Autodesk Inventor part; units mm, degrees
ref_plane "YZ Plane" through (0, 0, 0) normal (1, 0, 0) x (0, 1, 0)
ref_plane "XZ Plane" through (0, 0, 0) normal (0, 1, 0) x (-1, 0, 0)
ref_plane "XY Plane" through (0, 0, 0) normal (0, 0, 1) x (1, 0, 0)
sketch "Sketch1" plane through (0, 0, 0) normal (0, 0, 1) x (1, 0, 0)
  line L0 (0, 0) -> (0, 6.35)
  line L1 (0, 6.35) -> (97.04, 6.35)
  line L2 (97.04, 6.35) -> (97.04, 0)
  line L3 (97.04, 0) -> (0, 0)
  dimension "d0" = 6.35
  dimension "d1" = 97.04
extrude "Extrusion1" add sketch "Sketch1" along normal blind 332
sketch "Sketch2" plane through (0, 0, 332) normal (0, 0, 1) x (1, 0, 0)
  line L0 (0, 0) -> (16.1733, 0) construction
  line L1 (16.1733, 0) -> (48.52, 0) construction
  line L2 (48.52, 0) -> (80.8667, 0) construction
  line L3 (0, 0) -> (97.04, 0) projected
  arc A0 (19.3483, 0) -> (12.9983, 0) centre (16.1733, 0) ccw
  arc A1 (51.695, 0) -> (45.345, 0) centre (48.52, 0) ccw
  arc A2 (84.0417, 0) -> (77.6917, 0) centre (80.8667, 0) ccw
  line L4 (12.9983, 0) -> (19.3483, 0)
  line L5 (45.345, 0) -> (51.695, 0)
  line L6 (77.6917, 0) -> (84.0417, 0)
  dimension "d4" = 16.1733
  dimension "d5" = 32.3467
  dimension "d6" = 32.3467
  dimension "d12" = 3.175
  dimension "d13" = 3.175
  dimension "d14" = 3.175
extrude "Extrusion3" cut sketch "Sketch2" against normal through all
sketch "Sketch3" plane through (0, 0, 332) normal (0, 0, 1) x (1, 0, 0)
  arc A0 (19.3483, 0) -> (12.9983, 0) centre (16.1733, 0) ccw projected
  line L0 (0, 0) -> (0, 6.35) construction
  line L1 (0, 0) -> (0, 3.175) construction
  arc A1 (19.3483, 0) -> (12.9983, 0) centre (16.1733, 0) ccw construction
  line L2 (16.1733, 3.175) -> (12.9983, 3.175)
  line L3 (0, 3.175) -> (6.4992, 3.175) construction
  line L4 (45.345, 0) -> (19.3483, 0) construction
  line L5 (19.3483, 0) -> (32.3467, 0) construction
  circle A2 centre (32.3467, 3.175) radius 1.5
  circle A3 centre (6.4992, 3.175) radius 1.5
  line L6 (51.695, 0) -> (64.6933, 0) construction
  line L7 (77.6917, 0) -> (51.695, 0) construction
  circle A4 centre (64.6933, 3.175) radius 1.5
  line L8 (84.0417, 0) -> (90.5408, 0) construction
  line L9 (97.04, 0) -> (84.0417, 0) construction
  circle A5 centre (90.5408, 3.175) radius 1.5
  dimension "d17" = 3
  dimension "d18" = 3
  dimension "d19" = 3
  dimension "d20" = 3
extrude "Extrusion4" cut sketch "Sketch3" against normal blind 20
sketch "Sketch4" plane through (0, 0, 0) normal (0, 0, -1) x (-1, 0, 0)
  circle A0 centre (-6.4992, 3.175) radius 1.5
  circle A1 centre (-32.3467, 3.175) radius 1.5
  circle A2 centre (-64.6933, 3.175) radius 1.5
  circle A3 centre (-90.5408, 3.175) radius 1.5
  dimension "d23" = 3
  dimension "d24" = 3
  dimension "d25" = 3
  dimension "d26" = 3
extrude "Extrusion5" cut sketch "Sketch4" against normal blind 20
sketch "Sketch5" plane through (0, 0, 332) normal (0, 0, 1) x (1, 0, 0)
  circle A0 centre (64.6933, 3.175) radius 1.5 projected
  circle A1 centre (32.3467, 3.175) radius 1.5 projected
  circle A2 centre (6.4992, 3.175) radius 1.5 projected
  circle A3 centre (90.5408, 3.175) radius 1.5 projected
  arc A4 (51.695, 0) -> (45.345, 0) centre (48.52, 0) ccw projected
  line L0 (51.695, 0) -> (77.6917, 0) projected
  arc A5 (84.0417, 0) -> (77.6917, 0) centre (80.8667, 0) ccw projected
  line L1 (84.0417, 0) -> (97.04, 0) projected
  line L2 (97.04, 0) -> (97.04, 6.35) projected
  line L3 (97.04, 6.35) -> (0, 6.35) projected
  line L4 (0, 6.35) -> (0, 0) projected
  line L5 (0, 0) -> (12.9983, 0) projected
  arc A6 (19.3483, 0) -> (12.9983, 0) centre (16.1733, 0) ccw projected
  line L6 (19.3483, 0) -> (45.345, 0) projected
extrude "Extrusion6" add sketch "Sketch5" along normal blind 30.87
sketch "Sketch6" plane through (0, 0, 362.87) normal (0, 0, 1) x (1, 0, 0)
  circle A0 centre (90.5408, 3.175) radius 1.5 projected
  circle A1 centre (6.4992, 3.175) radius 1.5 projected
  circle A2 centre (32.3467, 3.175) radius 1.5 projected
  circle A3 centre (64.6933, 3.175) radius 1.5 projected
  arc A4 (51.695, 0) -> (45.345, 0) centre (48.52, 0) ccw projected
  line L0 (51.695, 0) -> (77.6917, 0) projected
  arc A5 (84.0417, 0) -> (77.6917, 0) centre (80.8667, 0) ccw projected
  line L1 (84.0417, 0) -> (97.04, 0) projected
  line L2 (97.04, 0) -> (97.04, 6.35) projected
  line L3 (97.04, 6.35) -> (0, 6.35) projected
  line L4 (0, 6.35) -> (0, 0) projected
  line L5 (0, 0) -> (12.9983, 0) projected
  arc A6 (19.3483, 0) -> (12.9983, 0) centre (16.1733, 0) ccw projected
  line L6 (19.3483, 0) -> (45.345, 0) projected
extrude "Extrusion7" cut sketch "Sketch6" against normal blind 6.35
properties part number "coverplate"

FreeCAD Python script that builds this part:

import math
import FreeCAD as App
import Part
import Sketcher

V = App.Vector
Q = App.Units.Quantity

doc = App.newDocument("Part")
body = doc.addObject("PartDesign::Body", "Body")

sketch1 = body.newObject("Sketcher::SketchObject", "Sketch")
sketch1.AttachmentSupport = (doc.getObject("XY_Plane"), [""])
sketch1.MapMode = "FlatFace"
sketch1.addGeometry([
    Part.LineSegment(V(0, 6, 0), V(0, 0, 0)),
    Part.LineSegment(V(0, 0, 0), V(97, 0, 0)),
    Part.LineSegment(V(97, 0, 0), V(97, 6, 0)),
    Part.LineSegment(V(97, 6, 0), V(0, 6, 0)),
], False)
sketch1.addConstraint([
    Sketcher.Constraint("Coincident", 0, 2, 1, 1),
    Sketcher.Constraint("Coincident", 1, 2, 2, 1),
    Sketcher.Constraint("Coincident", 2, 2, 3, 1),
    Sketcher.Constraint("Coincident", 3, 2, 0, 1),
    Sketcher.Constraint("Vertical", 0),
    Sketcher.Constraint("Horizontal", 1),
    Sketcher.Constraint("Vertical", 2),
    Sketcher.Constraint("Horizontal", 3),
    Sketcher.Constraint("Coincident", 0, 2, -1, 1),
    Sketcher.Constraint("DistanceX", 1, 1, 1, 2, Q("97.04 mm")),
    Sketcher.Constraint("DistanceY", 0, 2, 0, 1, Q("6.35 mm")),
])
pad1 = body.newObject("PartDesign::Pad", "Pad")
pad1.Profile = sketch1
pad1.Length = 332

sketch2 = body.newObject("Sketcher::SketchObject", "Sketch001")
sketch2.AttachmentSupport = (doc.getObject("XY_Plane"), [""])
sketch2.MapMode = "FlatFace"
sketch2.AttachmentOffset = App.Placement(V(0, 0, 332), App.Rotation())
sketch2.addGeometry([
    Part.ArcOfCircle(Part.Circle(V(16.2, 0, 0), V(0, 0, 1), 3.2), math.radians(0), math.radians(180)),
    Part.LineSegment(V(13, 0, 0), V(19.3, 0, 0)),
    Part.ArcOfCircle(Part.Circle(V(80.9, 0, 0), V(0, 0, 1), 3.2), math.radians(0), math.radians(180)),
    Part.LineSegment(V(77.7, 0, 0), V(84, 0, 0)),
    Part.ArcOfCircle(Part.Circle(V(48.5, 0, 0), V(0, 0, 1), 3.2), math.radians(0), math.radians(180)),
    Part.LineSegment(V(45.3, 0, 0), V(51.7, 0, 0)),
], False)
sketch2.addConstraint([
    Sketcher.Constraint("Coincident", 0, 1, 1, 2),
    Sketcher.Constraint("Coincident", 1, 1, 0, 2),
    Sketcher.Constraint("Coincident", 2, 1, 3, 2),
    Sketcher.Constraint("Coincident", 3, 1, 2, 2),
    Sketcher.Constraint("Coincident", 4, 1, 5, 2),
    Sketcher.Constraint("Coincident", 5, 1, 4, 2),
    Sketcher.Constraint("Horizontal", 1),
    Sketcher.Constraint("Horizontal", 3),
    Sketcher.Constraint("Horizontal", 5),
    Sketcher.Constraint("Equal", 0, 2),
    Sketcher.Constraint("Equal", 2, 4),
    Sketcher.Constraint("PointOnObject", 0, 3, -1),
    Sketcher.Constraint("PointOnObject", 2, 3, -1),
    Sketcher.Constraint("PointOnObject", 4, 3, -1),
    Sketcher.Constraint("PointOnObject", 0, 1, -1),
    Sketcher.Constraint("PointOnObject", 2, 1, -1),
    Sketcher.Constraint("PointOnObject", 4, 1, -1),
    Sketcher.Constraint("Radius", 0, Q("3.175 mm")),
    Sketcher.Constraint("DistanceX", -1, 1, 0, 3, Q("16.1733 mm")),
    Sketcher.Constraint("DistanceX", 4, 3, 2, 3, Q("32.3467 mm")),
    Sketcher.Constraint("DistanceX", 0, 3, 4, 3, Q("32.3467 mm")),
])
pocket1 = body.newObject("PartDesign::Pocket", "Pocket")
pocket1.Profile = sketch2
pocket1.Type = "ThroughAll"

sketch3 = body.newObject("Sketcher::SketchObject", "Sketch002")
sketch3.AttachmentSupport = (doc.getObject("XY_Plane"), [""])
sketch3.MapMode = "FlatFace"
sketch3.AttachmentOffset = App.Placement(V(0, 0, 332), App.Rotation())
sketch3.addGeometry([
    Part.Circle(V(32.3, 3.2, 0), V(0, 0, 1), 1.5),
    Part.Circle(V(6.5, 3.2, 0), V(0, 0, 1), 1.5),
    Part.Circle(V(64.7, 3.2, 0), V(0, 0, 1), 1.5),
    Part.Circle(V(90.5, 3.2, 0), V(0, 0, 1), 1.5),
], False)
sketch3.addConstraint([
    Sketcher.Constraint("Equal", 0, 1),
    Sketcher.Constraint("Equal", 1, 2),
    Sketcher.Constraint("Equal", 2, 3),
    Sketcher.Constraint("Horizontal", 0, 3, 1, 3),
    Sketcher.Constraint("Horizontal", 1, 3, 2, 3),
    Sketcher.Constraint("Horizontal", 2, 3, 3, 3),
    Sketcher.Constraint("Diameter", 0, Q("3 mm")),
    Sketcher.Constraint("DistanceY", -1, 1, 0, 3, Q("3.175 mm")),
    Sketcher.Constraint("DistanceX", 1, 3, 2, 3, Q("58.194 mm")),
    Sketcher.Constraint("DistanceX", 0, 3, 3, 3, Q("58.194 mm")),
    Sketcher.Constraint("DistanceX", -1, 1, 0, 3, Q("32.3467 mm")),
    Sketcher.Constraint("DistanceX", -1, 1, 1, 3, Q("6.4992 mm")),
])
pocket2 = body.newObject("PartDesign::Pocket", "Pocket001")
pocket2.Profile = sketch3
pocket2.Length = 20

sketch4 = body.newObject("Sketcher::SketchObject", "Sketch003")
sketch4.AttachmentSupport = (doc.getObject("XY_Plane"), [""])
sketch4.MapMode = "FlatFace"
sketch4.addGeometry([
    Part.Circle(V(6.5, 3.2, 0), V(0, 0, 1), 1.5),
    Part.Circle(V(32.3, 3.2, 0), V(0, 0, 1), 1.5),
    Part.Circle(V(64.7, 3.2, 0), V(0, 0, 1), 1.5),
    Part.Circle(V(90.5, 3.2, 0), V(0, 0, 1), 1.5),
], False)
sketch4.addConstraint([
    Sketcher.Constraint("Equal", 0, 1),
    Sketcher.Constraint("Equal", 1, 2),
    Sketcher.Constraint("Equal", 2, 3),
    Sketcher.Constraint("Horizontal", 0, 3, 1, 3),
    Sketcher.Constraint("Horizontal", 1, 3, 2, 3),
    Sketcher.Constraint("Horizontal", 2, 3, 3, 3),
    Sketcher.Constraint("Diameter", 0, Q("3 mm")),
    Sketcher.Constraint("DistanceY", -1, 1, 0, 3, Q("3.175 mm")),
    Sketcher.Constraint("DistanceX", 0, 3, 2, 3, Q("58.194 mm")),
    Sketcher.Constraint("DistanceX", 1, 3, 3, 3, Q("58.194 mm")),
    Sketcher.Constraint("DistanceX", -1, 1, 0, 3, Q("6.4992 mm")),
    Sketcher.Constraint("DistanceX", -1, 1, 1, 3, Q("32.3467 mm")),
])
pocket3 = body.newObject("PartDesign::Pocket", "Pocket002")
pocket3.Profile = sketch4
pocket3.Length = 20
pocket3.Reversed = True

sketch5 = body.newObject("Sketcher::SketchObject", "Sketch004")
sketch5.AttachmentSupport = (doc.getObject("XY_Plane"), [""])
sketch5.MapMode = "FlatFace"
sketch5.AttachmentOffset = App.Placement(V(0, 0, 332), App.Rotation())
sketch5.addGeometry([
    Part.ArcOfCircle(Part.Circle(V(48.5, 0, 0), V(0, 0, 1), 3.2), math.radians(0), math.radians(180)),
    Part.LineSegment(V(51.7, 0, 0), V(77.7, 0, 0)),
    Part.ArcOfCircle(Part.Circle(V(80.9, 0, 0), V(0, 0, 1), 3.2), math.radians(0), math.radians(180)),
    Part.LineSegment(V(84, 0, 0), V(97, 0, 0)),
    Part.LineSegment(V(97, 0, 0), V(97, 6.3, 0)),
    Part.LineSegment(V(97, 6.3, 0), V(0, 6.3, 0)),
    Part.LineSegment(V(0, 6.3, 0), V(0, 0, 0)),
    Part.LineSegment(V(0, 0, 0), V(13, 0, 0)),
    Part.ArcOfCircle(Part.Circle(V(16.2, 0, 0), V(0, 0, 1), 3.2), math.radians(0), math.radians(180)),
    Part.LineSegment(V(19.3, 0, 0), V(45.3, 0, 0)),
    Part.Circle(V(6.5, 3.2, 0), V(0, 0, 1), 1.5),
    Part.Circle(V(32.3, 3.2, 0), V(0, 0, 1), 1.5),
    Part.Circle(V(64.7, 3.2, 0), V(0, 0, 1), 1.5),
    Part.Circle(V(90.5, 3.2, 0), V(0, 0, 1), 1.5),
], False)
sketch5.addConstraint([
    Sketcher.Constraint("Coincident", 0, 1, 1, 1),
    Sketcher.Constraint("Coincident", 1, 2, 2, 2),
    Sketcher.Constraint("Coincident", 2, 1, 3, 1),
    Sketcher.Constraint("Coincident", 3, 2, 4, 1),
    Sketcher.Constraint("Coincident", 4, 2, 5, 1),
    Sketcher.Constraint("Coincident", 5, 2, 6, 1),
    Sketcher.Constraint("Coincident", 6, 2, 7, 1),
    Sketcher.Constraint("Coincident", 7, 2, 8, 2),
    Sketcher.Constraint("Coincident", 8, 1, 9, 1),
    Sketcher.Constraint("Coincident", 9, 2, 0, 2),
    Sketcher.Constraint("Horizontal", 1),
    Sketcher.Constraint("Horizontal", 3),
    Sketcher.Constraint("Vertical", 4),
    Sketcher.Constraint("Horizontal", 5),
    Sketcher.Constraint("Vertical", 6),
    Sketcher.Constraint("Horizontal", 7),
    Sketcher.Constraint("Horizontal", 9),
    Sketcher.Constraint("Coincident", 6, 2, -1, 1),
    Sketcher.Constraint("Equal", 0, 2),
    Sketcher.Constraint("Equal", 2, 8),
    Sketcher.Constraint("Equal", 10, 11),
    Sketcher.Constraint("Equal", 11, 12),
    Sketcher.Constraint("Equal", 12, 13),
    Sketcher.Constraint("PointOnObject", 0, 3, -1),
    Sketcher.Constraint("PointOnObject", 2, 3, -1),
    Sketcher.Constraint("PointOnObject", 8, 3, -1),
    Sketcher.Constraint("PointOnObject", 0, 1, -1),
    Sketcher.Constraint("PointOnObject", 2, 1, -1),
    Sketcher.Constraint("PointOnObject", 8, 1, -1),
    Sketcher.Constraint("Horizontal", 10, 3, 11, 3),
    Sketcher.Constraint("Horizontal", 11, 3, 12, 3),
    Sketcher.Constraint("Horizontal", 12, 3, 13, 3),
    Sketcher.Constraint("Equal", 3, 7),
    Sketcher.Constraint("Equal", 1, 9),
    Sketcher.Constraint("Diameter", 10, Q("3 mm")),
    Sketcher.Constraint("Radius", 0, Q("3.175 mm")),
    Sketcher.Constraint("DistanceX", 5, 2, 5, 1, Q("97.04 mm")),
    Sketcher.Constraint("DistanceY", 4, 1, 4, 2, Q("6.35 mm")),
    Sketcher.Constraint("DistanceX", 11, 3, 2, 3, Q("48.52 mm")),
    Sketcher.Constraint("DistanceX", 8, 3, 12, 3, Q("48.52 mm")),
    Sketcher.Constraint("DistanceX", 1, 1, 1, 2, Q("25.9967 mm")),
    Sketcher.Constraint("DistanceY", -1, 1, 10, 3, Q("3.175 mm")),
    Sketcher.Constraint("DistanceX", 10, 3, 8, 3, Q("9.674 mm")),
    Sketcher.Constraint("DistanceX", 2, 3, 13, 3, Q("9.674 mm")),
])
pad2 = body.newObject("PartDesign::Pad", "Pad001")
pad2.Profile = sketch5
pad2.Length = 30.87

sketch6 = body.newObject("Sketcher::SketchObject", "Sketch005")
sketch6.AttachmentSupport = (doc.getObject("XY_Plane"), [""])
sketch6.MapMode = "FlatFace"
sketch6.AttachmentOffset = App.Placement(V(0, 0, 362.87), App.Rotation())
sketch6.addGeometry([
    Part.ArcOfCircle(Part.Circle(V(48.5, 0, 0), V(0, 0, 1), 3.2), math.radians(0), math.radians(180)),
    Part.LineSegment(V(51.7, 0, 0), V(77.7, 0, 0)),
    Part.ArcOfCircle(Part.Circle(V(80.9, 0, 0), V(0, 0, 1), 3.2), math.radians(0), math.radians(180)),
    Part.LineSegment(V(84, 0, 0), V(97, 0, 0)),
    Part.LineSegment(V(97, 0, 0), V(97, 6.3, 0)),
    Part.LineSegment(V(97, 6.3, 0), V(0, 6.3, 0)),
    Part.LineSegment(V(0, 6.3, 0), V(0, 0, 0)),
    Part.LineSegment(V(0, 0, 0), V(13, 0, 0)),
    Part.ArcOfCircle(Part.Circle(V(16.2, 0, 0), V(0, 0, 1), 3.2), math.radians(0), math.radians(180)),
    Part.LineSegment(V(19.3, 0, 0), V(45.3, 0, 0)),
    Part.Circle(V(6.5, 3.2, 0), V(0, 0, 1), 1.5),
    Part.Circle(V(32.3, 3.2, 0), V(0, 0, 1), 1.5),
    Part.Circle(V(64.7, 3.2, 0), V(0, 0, 1), 1.5),
    Part.Circle(V(90.5, 3.2, 0), V(0, 0, 1), 1.5),
], False)
sketch6.addConstraint([
    Sketcher.Constraint("Coincident", 0, 1, 1, 1),
    Sketcher.Constraint("Coincident", 1, 2, 2, 2),
    Sketcher.Constraint("Coincident", 2, 1, 3, 1),
    Sketcher.Constraint("Coincident", 3, 2, 4, 1),
    Sketcher.Constraint("Coincident", 4, 2, 5, 1),
    Sketcher.Constraint("Coincident", 5, 2, 6, 1),
    Sketcher.Constraint("Coincident", 6, 2, 7, 1),
    Sketcher.Constraint("Coincident", 7, 2, 8, 2),
    Sketcher.Constraint("Coincident", 8, 1, 9, 1),
    Sketcher.Constraint("Coincident", 9, 2, 0, 2),
    Sketcher.Constraint("Horizontal", 1),
    Sketcher.Constraint("Horizontal", 3),
    Sketcher.Constraint("Vertical", 4),
    Sketcher.Constraint("Horizontal", 5),
    Sketcher.Constraint("Vertical", 6),
    Sketcher.Constraint("Horizontal", 7),
    Sketcher.Constraint("Horizontal", 9),
    Sketcher.Constraint("Coincident", 6, 2, -1, 1),
    Sketcher.Constraint("Equal", 0, 2),
    Sketcher.Constraint("Equal", 2, 8),
    Sketcher.Constraint("Equal", 10, 11),
    Sketcher.Constraint("Equal", 11, 12),
    Sketcher.Constraint("Equal", 12, 13),
    Sketcher.Constraint("PointOnObject", 0, 3, -1),
    Sketcher.Constraint("PointOnObject", 2, 3, -1),
    Sketcher.Constraint("PointOnObject", 8, 3, -1),
    Sketcher.Constraint("PointOnObject", 0, 1, -1),
    Sketcher.Constraint("PointOnObject", 2, 1, -1),
    Sketcher.Constraint("PointOnObject", 8, 1, -1),
    Sketcher.Constraint("Horizontal", 10, 3, 11, 3),
    Sketcher.Constraint("Horizontal", 11, 3, 12, 3),
    Sketcher.Constraint("Horizontal", 12, 3, 13, 3),
    Sketcher.Constraint("Equal", 3, 7),
    Sketcher.Constraint("Equal", 1, 9),
    Sketcher.Constraint("Diameter", 10, Q("3 mm")),
    Sketcher.Constraint("Radius", 0, Q("3.175 mm")),
    Sketcher.Constraint("DistanceX", 5, 2, 5, 1, Q("97.04 mm")),
    Sketcher.Constraint("DistanceY", 4, 1, 4, 2, Q("6.35 mm")),
    Sketcher.Constraint("DistanceX", 11, 3, 2, 3, Q("48.52 mm")),
    Sketcher.Constraint("DistanceX", 8, 3, 12, 3, Q("48.52 mm")),
    Sketcher.Constraint("DistanceX", 1, 1, 1, 2, Q("25.9967 mm")),
    Sketcher.Constraint("DistanceY", -1, 1, 10, 3, Q("3.175 mm")),
    Sketcher.Constraint("DistanceX", 10, 3, 8, 3, Q("9.674 mm")),
    Sketcher.Constraint("DistanceX", 2, 3, 13, 3, Q("9.674 mm")),
])
pocket4 = body.newObject("PartDesign::Pocket", "Pocket003")
pocket4.Profile = sketch6
pocket4.Length = 6.35

doc.recompute()
